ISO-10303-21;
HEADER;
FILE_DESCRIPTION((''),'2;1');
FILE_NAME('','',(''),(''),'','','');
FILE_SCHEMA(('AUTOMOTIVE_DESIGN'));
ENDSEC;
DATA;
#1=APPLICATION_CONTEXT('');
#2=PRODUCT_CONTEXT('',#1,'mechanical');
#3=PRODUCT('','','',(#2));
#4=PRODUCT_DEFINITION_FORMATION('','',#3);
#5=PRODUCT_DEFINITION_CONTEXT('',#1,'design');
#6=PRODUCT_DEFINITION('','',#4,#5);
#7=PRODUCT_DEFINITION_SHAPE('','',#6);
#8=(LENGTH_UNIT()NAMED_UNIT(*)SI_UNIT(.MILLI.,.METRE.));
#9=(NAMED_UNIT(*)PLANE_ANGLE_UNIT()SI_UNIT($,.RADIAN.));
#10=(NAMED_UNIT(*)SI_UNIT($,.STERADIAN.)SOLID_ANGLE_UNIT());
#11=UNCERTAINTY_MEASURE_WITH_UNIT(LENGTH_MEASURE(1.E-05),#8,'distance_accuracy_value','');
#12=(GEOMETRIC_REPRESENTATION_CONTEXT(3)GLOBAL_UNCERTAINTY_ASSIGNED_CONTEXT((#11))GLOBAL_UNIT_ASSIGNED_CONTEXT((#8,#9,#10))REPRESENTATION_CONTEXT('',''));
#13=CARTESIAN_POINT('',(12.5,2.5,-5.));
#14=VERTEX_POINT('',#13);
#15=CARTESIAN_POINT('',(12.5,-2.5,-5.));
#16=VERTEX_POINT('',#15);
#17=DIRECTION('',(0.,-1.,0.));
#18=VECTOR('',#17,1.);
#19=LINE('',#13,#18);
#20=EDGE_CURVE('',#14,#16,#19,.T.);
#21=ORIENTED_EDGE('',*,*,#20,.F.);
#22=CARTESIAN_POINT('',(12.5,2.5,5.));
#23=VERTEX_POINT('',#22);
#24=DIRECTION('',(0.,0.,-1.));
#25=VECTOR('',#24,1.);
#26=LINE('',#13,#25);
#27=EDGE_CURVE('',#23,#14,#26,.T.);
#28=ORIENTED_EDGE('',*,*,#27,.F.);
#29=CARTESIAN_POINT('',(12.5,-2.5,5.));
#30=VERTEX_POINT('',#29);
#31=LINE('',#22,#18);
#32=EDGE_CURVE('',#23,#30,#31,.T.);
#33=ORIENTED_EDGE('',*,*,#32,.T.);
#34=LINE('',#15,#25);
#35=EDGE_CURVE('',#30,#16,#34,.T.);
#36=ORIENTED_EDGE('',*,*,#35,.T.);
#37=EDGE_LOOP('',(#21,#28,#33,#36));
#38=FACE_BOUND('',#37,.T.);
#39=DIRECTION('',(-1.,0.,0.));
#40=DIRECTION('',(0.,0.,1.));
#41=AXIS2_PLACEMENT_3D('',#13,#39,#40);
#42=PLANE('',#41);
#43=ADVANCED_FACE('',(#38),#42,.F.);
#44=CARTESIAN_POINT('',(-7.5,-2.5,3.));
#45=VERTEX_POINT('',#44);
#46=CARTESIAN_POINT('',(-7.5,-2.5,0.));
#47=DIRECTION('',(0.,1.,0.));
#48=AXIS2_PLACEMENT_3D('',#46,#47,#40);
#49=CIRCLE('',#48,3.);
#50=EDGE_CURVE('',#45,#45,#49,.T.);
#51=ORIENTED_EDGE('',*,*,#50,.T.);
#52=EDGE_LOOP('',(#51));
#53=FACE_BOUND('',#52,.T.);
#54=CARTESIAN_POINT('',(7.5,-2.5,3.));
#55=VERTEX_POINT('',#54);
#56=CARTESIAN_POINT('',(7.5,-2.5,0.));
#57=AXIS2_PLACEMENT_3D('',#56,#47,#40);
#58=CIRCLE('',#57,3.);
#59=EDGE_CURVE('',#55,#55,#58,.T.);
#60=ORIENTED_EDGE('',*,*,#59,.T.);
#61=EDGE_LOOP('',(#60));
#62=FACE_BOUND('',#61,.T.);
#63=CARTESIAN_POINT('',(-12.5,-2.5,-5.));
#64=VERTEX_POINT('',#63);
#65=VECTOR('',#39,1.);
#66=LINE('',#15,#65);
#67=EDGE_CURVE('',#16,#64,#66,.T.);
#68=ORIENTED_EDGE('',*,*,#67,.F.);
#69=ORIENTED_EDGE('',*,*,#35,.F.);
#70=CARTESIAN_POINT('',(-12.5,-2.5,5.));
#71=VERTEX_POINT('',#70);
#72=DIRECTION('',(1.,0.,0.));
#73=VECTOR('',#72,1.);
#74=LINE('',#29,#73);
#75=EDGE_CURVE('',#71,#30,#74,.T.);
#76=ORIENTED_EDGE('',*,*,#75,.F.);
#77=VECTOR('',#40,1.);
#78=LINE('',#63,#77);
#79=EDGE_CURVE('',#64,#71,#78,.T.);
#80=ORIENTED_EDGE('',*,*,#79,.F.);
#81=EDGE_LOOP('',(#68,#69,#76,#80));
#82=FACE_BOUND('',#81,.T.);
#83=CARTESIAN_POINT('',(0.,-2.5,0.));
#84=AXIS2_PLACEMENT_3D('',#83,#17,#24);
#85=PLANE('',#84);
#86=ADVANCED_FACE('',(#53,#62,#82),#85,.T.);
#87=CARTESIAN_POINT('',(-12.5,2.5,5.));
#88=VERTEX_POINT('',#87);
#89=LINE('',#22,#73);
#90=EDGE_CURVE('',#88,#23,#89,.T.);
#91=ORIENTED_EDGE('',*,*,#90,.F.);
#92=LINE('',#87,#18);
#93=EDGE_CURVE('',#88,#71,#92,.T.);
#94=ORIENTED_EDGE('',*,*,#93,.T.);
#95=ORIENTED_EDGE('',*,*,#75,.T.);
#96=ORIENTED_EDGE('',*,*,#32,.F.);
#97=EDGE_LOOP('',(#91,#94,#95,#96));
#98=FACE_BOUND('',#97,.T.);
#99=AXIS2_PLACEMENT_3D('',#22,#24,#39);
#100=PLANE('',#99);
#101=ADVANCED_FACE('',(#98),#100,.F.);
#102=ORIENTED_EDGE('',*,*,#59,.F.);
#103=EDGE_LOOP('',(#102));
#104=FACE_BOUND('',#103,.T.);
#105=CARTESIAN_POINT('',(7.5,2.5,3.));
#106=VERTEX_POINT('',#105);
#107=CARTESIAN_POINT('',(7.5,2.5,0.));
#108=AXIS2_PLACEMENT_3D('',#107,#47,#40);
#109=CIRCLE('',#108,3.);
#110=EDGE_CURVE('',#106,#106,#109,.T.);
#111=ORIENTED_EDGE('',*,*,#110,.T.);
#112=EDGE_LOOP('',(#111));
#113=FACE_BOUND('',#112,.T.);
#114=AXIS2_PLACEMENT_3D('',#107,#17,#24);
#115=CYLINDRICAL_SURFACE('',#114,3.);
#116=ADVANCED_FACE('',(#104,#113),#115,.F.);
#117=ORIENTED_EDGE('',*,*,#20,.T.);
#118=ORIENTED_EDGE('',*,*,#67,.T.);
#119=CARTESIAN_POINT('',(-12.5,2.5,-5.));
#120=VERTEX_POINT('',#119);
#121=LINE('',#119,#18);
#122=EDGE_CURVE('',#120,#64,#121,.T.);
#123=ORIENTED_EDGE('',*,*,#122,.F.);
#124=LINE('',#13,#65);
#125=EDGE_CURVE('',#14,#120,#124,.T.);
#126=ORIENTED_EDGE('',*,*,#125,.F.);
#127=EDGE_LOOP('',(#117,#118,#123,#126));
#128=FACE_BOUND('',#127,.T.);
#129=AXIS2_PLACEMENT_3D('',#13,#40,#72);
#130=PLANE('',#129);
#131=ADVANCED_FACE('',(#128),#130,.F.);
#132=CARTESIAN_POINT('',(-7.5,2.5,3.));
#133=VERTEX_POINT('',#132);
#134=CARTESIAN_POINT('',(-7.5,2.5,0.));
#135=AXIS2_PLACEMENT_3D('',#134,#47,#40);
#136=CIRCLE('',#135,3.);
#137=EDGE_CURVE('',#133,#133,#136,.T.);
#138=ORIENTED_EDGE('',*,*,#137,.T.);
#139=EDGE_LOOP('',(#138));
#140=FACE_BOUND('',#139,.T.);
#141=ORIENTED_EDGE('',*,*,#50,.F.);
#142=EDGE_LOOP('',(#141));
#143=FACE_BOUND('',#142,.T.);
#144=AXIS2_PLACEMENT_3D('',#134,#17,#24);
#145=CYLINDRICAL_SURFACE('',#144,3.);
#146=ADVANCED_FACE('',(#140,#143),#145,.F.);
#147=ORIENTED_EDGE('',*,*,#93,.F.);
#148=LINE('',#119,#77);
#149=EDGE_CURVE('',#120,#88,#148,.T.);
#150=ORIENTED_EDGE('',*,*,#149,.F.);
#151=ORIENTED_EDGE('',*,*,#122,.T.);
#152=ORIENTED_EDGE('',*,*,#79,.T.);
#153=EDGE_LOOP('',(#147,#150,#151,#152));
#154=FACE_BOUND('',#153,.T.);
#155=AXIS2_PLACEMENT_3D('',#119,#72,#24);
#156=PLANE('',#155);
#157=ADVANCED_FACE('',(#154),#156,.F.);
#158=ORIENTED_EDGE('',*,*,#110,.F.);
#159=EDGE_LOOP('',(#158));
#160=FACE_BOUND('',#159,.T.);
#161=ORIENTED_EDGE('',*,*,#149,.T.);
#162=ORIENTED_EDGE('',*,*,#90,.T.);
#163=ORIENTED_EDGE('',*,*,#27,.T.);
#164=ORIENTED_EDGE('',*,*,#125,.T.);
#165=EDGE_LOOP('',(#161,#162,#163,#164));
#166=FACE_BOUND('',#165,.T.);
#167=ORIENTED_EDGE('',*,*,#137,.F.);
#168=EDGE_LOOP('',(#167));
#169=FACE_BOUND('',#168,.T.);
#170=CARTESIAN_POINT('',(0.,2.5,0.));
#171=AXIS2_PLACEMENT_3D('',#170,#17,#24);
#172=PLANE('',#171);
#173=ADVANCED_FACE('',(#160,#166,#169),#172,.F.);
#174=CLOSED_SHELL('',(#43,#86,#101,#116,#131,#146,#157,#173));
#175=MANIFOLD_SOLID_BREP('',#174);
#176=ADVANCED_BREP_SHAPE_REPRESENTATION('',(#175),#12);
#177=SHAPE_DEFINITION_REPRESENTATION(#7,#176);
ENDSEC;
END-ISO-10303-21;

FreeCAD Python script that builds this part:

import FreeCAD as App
import Part
import Sketcher

V = App.Vector


def add_polygon(sketch, points):
    """Adds a closed chain of lines whose ends are joined by coincident constraints."""
    first, n = sketch.GeometryCount, len(points)
    for a, b in zip(points, points[1:] + points[:1]):
        sketch.addGeometry(Part.LineSegment(App.Vector(*a, 0), App.Vector(*b, 0)), False)
    for i in range(n):
        sketch.addConstraint(Sketcher.Constraint("Coincident", first + i, 2, first + (i + 1) % n, 1))

doc = App.newDocument("Part")
body = doc.addObject("PartDesign::Body", "Body")

# Sketch on XZ plane
sketch1 = body.newObject("Sketcher::SketchObject", "Sketch")
sketch1.AttachmentSupport = (doc.getObject("XZ_Plane"), [""])
sketch1.MapMode = "FlatFace"
add_polygon(sketch1, [(-12.5, -5), (-12.5, 5), (12.5, 5), (12.5, -5)])  # lines 0-3
sketch1.addGeometry(Part.Circle(V(-7.5, 0, 0), V(0, 0, 1), 3), False)  # 4
sketch1.addGeometry(Part.Circle(V(7.5, 0, 0), V(0, 0, 1), 3), False)  # 5
sketch1.addConstraint(Sketcher.Constraint("Vertical", 0))
sketch1.addConstraint(Sketcher.Constraint("Horizontal", 1))
sketch1.addConstraint(Sketcher.Constraint("Vertical", 2))
sketch1.addConstraint(Sketcher.Constraint("Horizontal", 3))
sketch1.addConstraint(Sketcher.Constraint("Equal", 4, 5))
sketch1.addConstraint(Sketcher.Constraint("Symmetric", 4, 3, 5, 3, -1, 1))
sketch1.addConstraint(Sketcher.Constraint("Symmetric", 0, 2, 2, 2, -1, 1))
sketch1.addConstraint(Sketcher.Constraint("PointOnObject", 4, 3, -1))
sketch1.addConstraint(Sketcher.Constraint("Diameter", 4, 6.0))
sketch1.addConstraint(Sketcher.Constraint("DistanceX", 1, 1, 1, 2, 25.0))
sketch1.addConstraint(Sketcher.Constraint("DistanceY", 0, 1, 0, 2, 10.0))
sketch1.addConstraint(Sketcher.Constraint("DistanceX", 4, 3, 5, 3, 15.0))
pad1 = body.newObject("PartDesign::Pad", "Pad")
pad1.Profile = sketch1
pad1.Length = 5
pad1.Midplane = True

doc.recompute()
